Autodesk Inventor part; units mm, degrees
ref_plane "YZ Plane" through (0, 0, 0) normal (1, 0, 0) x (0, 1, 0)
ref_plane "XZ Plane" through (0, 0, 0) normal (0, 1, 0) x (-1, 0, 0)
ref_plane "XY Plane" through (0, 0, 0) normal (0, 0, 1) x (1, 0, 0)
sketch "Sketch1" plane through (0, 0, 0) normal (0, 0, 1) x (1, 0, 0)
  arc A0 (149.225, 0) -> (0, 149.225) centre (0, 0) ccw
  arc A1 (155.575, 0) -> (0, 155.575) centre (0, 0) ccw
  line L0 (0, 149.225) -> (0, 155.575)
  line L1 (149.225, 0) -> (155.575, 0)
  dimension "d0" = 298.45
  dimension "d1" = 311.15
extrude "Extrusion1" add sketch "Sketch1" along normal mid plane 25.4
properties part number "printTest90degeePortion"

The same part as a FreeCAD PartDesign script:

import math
import FreeCAD as App
import Part
import Sketcher
Q = App.Units.Quantity

doc = App.newDocument("Part")
body = doc.addObject("PartDesign::Body", "Body")

# Sketch on XY plane
sketch1 = doc.addObject("Sketcher::SketchObject", "Sketch")
body.addObject(sketch1)
sketch1.AttachmentSupport = (doc.XY_Plane, [""])
sketch1.MapMode = "FlatFace"
sketch1.addGeometry([
    Part.ArcOfCircle(Part.Circle(App.Vector(0, 0, 0), App.Vector(0, 0, 1), 149.225), math.radians(0), math.radians(90)),
    Part.LineSegment(App.Vector(149.225, 0, 0), App.Vector(155.575, 0, 0)),
    Part.ArcOfCircle(Part.Circle(App.Vector(0, 0, 0), App.Vector(0, 0, 1), 155.575), math.radians(0), math.radians(90)),
    Part.LineSegment(App.Vector(0, 155.575, 0), App.Vector(0, 149.225, 0)),
], False)
sketch1.addConstraint([
    Sketcher.Constraint("Coincident", 0, 1, 1, 1),
    Sketcher.Constraint("Coincident", 1, 2, 2, 1),
    Sketcher.Constraint("Coincident", 2, 2, 3, 1),
    Sketcher.Constraint("Coincident", 3, 2, 0, 2),
    Sketcher.Constraint("Horizontal", 1),
    Sketcher.Constraint("Vertical", 3),
    Sketcher.Constraint("Coincident", 0, 3, -1, 1),
    Sketcher.Constraint("Coincident", 2, 3, -1, 1),
    Sketcher.Constraint("PointOnObject", 0, 1, -1),
    Sketcher.Constraint("PointOnObject", 2, 2, -2),
    Sketcher.Constraint("Radius", 0, Q("5.875 in")),
    Sketcher.Constraint("Radius", 2, Q("6.125 in")),
])
pad1 = doc.addObject("PartDesign::Pad", "Pad")
body.addObject(pad1)
pad1.Profile = sketch1
pad1.Length = Q("1 in")
pad1.Midplane = True

doc.recompute()
